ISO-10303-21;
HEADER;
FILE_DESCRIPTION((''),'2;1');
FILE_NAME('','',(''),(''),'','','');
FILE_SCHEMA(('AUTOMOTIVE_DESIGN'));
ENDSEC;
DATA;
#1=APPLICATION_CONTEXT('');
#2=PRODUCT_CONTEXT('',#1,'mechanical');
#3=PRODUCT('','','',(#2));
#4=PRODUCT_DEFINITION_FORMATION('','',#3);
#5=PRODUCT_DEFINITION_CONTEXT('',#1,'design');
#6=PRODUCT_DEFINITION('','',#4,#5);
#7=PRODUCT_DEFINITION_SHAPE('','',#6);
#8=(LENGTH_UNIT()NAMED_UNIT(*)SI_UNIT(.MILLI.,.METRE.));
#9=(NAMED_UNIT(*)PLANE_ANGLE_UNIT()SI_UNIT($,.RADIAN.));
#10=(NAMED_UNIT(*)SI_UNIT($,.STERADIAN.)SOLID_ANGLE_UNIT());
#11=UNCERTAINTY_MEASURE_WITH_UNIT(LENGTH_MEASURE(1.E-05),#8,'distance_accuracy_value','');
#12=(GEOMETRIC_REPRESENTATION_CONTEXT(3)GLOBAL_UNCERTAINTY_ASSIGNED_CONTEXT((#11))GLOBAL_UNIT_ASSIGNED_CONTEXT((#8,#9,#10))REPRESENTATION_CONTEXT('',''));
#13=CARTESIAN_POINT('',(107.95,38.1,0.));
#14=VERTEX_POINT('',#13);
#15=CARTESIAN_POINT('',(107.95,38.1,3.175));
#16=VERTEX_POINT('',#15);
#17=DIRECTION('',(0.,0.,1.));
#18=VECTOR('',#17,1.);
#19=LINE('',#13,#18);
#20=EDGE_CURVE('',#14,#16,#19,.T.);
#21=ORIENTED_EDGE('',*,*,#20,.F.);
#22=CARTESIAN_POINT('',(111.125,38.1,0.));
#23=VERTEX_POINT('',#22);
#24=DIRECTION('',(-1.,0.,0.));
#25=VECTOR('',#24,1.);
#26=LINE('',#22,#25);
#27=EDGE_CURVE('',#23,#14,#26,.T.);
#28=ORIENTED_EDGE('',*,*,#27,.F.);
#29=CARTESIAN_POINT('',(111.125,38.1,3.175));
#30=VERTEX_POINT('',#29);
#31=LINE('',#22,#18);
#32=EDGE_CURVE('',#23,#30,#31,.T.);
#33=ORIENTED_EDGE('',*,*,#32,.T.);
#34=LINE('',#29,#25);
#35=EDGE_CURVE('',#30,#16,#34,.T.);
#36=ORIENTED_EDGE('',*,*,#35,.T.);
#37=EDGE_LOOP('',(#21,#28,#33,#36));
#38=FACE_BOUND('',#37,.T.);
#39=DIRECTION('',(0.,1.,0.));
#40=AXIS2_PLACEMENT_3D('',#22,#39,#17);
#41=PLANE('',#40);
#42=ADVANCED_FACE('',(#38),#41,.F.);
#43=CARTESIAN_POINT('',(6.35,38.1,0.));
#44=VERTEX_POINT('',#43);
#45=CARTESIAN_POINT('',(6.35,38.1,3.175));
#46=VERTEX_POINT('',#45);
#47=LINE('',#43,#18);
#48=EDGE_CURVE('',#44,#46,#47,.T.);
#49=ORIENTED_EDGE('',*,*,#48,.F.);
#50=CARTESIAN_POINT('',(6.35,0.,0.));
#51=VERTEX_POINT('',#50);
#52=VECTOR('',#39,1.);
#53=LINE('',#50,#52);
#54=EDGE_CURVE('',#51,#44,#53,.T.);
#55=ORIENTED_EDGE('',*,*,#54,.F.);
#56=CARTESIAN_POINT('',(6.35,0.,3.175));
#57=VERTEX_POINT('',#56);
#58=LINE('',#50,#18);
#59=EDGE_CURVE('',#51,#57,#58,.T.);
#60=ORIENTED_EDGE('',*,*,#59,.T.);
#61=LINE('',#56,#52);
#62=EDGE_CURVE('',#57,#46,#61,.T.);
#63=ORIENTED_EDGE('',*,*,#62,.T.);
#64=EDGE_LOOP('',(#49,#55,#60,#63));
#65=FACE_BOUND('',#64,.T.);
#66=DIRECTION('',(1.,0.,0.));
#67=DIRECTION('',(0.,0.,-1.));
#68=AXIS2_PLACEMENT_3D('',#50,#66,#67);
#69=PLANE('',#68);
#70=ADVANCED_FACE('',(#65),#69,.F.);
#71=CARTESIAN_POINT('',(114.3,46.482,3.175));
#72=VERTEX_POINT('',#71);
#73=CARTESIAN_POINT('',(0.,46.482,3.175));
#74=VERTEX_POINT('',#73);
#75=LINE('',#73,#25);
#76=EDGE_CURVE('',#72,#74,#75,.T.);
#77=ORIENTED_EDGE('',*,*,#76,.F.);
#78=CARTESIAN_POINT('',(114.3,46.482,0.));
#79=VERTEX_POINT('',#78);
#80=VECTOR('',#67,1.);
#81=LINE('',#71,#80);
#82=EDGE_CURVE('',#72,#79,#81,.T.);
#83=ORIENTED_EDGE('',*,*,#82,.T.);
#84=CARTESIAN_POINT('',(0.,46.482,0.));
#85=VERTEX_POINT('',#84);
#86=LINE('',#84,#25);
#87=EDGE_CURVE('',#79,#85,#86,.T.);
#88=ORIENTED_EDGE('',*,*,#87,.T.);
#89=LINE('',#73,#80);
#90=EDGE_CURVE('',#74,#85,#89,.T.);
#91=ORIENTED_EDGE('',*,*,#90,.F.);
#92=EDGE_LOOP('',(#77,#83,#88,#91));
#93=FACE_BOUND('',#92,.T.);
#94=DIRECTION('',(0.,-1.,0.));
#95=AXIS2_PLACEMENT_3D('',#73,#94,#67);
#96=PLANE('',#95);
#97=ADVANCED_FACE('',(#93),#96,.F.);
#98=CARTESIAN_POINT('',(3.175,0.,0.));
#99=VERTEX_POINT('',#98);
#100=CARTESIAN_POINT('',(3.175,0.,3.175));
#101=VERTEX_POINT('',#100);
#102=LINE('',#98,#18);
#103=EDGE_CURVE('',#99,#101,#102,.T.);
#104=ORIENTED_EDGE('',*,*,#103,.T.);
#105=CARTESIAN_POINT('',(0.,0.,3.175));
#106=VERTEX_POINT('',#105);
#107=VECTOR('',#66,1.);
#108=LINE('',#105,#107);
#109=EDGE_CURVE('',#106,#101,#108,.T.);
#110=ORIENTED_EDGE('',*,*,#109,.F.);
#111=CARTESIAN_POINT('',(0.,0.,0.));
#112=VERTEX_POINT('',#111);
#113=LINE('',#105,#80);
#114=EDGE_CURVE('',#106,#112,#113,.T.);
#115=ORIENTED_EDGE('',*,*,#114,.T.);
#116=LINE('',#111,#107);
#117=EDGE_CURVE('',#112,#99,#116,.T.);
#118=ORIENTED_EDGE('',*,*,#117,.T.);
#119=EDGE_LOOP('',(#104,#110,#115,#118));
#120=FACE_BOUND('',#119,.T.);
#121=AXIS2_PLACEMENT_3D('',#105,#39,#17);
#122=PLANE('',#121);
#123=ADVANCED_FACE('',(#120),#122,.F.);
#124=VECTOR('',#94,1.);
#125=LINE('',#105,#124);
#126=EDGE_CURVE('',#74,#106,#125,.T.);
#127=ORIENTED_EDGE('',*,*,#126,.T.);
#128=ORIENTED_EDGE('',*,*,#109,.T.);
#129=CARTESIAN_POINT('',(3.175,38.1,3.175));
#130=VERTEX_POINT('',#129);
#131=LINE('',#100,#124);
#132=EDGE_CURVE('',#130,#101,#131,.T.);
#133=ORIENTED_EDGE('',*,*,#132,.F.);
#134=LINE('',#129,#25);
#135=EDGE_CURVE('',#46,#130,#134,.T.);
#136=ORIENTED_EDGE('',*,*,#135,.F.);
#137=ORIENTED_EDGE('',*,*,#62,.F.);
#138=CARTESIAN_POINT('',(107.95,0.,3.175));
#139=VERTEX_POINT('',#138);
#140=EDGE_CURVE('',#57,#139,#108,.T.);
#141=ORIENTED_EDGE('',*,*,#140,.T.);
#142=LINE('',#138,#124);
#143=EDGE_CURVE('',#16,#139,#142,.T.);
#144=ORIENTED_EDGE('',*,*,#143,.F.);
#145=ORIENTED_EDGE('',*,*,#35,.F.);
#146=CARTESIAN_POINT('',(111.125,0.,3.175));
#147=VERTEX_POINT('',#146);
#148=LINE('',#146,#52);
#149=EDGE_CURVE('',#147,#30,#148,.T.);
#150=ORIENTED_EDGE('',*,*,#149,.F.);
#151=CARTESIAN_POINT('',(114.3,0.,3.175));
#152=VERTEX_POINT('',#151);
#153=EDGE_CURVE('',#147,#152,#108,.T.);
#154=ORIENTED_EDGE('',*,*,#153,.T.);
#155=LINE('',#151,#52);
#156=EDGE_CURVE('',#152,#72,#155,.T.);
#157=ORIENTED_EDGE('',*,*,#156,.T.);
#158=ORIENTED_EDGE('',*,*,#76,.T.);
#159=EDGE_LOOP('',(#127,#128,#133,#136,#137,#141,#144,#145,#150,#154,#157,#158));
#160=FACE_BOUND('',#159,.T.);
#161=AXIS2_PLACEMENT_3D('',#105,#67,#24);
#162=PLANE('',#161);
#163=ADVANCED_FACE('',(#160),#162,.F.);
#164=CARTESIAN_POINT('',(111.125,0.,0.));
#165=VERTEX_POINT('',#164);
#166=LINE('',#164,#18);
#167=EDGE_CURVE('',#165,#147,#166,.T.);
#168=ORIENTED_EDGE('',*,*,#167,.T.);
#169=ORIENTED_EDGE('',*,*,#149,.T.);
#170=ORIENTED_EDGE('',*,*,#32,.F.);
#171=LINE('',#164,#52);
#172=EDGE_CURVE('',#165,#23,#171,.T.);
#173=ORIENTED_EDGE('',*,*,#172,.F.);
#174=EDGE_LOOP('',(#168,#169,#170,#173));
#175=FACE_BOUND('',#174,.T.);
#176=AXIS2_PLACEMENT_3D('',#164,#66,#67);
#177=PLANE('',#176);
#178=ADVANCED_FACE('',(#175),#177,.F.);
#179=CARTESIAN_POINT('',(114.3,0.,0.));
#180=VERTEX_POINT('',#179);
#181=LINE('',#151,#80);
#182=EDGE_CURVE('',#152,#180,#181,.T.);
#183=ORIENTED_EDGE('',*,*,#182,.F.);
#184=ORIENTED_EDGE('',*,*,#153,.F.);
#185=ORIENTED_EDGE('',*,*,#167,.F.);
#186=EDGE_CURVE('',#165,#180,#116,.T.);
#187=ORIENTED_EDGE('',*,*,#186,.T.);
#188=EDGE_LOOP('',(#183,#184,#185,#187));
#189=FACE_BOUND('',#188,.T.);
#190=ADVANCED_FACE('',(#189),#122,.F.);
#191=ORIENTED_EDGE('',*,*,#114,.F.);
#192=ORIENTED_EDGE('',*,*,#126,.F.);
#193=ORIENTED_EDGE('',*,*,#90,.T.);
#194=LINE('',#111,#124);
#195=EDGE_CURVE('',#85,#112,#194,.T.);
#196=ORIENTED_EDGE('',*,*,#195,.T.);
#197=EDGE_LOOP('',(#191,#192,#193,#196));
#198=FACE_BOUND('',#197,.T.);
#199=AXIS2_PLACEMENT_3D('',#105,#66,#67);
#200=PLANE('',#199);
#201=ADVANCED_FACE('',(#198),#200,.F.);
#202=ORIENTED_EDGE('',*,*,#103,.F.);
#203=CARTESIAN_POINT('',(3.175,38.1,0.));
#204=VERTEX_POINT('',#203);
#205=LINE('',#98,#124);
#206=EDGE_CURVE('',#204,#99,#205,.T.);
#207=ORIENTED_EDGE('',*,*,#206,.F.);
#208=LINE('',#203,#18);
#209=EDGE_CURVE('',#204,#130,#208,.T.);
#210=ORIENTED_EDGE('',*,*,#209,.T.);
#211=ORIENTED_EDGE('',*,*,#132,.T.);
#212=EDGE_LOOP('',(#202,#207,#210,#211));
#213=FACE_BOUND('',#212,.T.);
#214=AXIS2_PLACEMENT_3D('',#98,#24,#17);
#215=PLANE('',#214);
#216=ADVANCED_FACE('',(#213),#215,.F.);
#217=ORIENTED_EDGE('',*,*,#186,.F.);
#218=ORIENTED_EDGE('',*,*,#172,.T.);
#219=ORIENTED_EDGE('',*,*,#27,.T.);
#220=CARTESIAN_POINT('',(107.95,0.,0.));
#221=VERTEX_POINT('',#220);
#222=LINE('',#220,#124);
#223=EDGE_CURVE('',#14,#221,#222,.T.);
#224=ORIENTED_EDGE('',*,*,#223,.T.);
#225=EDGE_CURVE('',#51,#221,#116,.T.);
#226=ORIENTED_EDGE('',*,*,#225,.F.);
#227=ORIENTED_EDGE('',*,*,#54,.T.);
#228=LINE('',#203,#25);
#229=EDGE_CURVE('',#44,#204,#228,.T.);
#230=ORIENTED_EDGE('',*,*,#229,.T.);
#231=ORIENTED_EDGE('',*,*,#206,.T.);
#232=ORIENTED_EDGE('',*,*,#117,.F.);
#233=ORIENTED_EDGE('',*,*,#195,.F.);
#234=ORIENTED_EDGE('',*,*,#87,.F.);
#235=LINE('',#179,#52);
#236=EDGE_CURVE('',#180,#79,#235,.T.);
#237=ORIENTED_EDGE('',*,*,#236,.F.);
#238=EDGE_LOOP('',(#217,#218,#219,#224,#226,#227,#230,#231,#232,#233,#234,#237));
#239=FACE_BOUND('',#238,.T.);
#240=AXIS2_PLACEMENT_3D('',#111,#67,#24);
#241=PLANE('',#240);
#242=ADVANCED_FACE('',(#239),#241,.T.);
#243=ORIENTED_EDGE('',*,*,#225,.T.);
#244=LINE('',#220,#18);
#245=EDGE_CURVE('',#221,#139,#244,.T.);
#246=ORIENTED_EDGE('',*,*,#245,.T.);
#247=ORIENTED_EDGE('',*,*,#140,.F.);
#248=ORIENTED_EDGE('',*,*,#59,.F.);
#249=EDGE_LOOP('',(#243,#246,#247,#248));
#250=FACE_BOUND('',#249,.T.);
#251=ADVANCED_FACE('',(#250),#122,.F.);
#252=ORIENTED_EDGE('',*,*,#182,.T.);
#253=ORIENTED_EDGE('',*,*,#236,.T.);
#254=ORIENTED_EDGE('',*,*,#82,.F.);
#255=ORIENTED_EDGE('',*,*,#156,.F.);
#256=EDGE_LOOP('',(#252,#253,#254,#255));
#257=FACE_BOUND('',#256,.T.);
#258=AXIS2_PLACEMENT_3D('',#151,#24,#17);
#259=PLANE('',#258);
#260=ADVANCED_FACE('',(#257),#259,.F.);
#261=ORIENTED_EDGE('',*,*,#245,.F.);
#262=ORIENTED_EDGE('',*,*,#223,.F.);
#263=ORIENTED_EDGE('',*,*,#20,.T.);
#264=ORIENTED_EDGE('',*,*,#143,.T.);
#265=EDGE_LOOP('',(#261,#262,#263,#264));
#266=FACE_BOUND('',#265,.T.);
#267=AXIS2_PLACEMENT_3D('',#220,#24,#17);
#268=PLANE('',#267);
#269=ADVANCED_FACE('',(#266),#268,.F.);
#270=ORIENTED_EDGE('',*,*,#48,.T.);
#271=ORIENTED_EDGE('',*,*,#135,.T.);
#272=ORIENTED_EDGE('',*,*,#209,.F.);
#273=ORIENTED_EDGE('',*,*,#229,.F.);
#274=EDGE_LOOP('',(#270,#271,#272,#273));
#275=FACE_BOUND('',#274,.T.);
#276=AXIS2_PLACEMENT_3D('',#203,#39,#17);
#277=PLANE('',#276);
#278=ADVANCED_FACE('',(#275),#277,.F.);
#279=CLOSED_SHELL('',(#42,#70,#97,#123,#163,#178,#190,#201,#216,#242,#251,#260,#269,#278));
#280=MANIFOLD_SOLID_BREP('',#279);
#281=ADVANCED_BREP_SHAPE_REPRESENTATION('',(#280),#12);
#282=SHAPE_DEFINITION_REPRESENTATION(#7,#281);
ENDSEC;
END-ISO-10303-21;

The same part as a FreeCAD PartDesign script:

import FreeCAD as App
import Part
import Sketcher
Q = App.Units.Quantity

doc = App.newDocument("Part")
body = doc.addObject("PartDesign::Body", "Body")

sketch1 = body.newObject("Sketcher::SketchObject", "Sketch")
sketch1.AttachmentSupport = (doc.getObject("XY_Plane"), [""])
sketch1.MapMode = "FlatFace"
sketch1.addGeometry([
    Part.LineSegment(App.Vector(0, 46, 0), App.Vector(0, 0, 0)),
    Part.LineSegment(App.Vector(0, 0, 0), App.Vector(114, 0, 0)),
    Part.LineSegment(App.Vector(114, 0, 0), App.Vector(114, 46, 0)),
    Part.LineSegment(App.Vector(114, 46, 0), App.Vector(0, 46, 0)),
], False)
sketch1.addConstraint([
    Sketcher.Constraint("Coincident", 0, 2, 1, 1),
    Sketcher.Constraint("Coincident", 1, 2, 2, 1),
    Sketcher.Constraint("Coincident", 2, 2, 3, 1),
    Sketcher.Constraint("Coincident", 3, 2, 0, 1),
    Sketcher.Constraint("Vertical", 0),
    Sketcher.Constraint("Horizontal", 1),
    Sketcher.Constraint("Vertical", 2),
    Sketcher.Constraint("Horizontal", 3),
    Sketcher.Constraint("Coincident", 0, 2, -1, 1),
    Sketcher.Constraint("DistanceX", 1, 1, 1, 2, Q("4.5 in")),
    Sketcher.Constraint("DistanceY", 0, 2, 0, 1, Q("1.83 in")),
])
pad1 = body.newObject("PartDesign::Pad", "Pad")
pad1.Profile = sketch1
pad1.Length = Q("0.125 in")

sketch2 = body.newObject("Sketcher::SketchObject", "Sketch001")
sketch2.AttachmentSupport = (doc.getObject("XY_Plane"), [""])
sketch2.MapMode = "FlatFace"
sketch2.AttachmentOffset = App.Placement(App.Vector(0, 0, 0.125 * 25.4), App.Rotation())
sketch2.addGeometry([
    Part.LineSegment(App.Vector(3.2, 38.1, 0), App.Vector(3.2, 0, 0)),
    Part.LineSegment(App.Vector(3.2, 0, 0), App.Vector(6.3, 0, 0)),
    Part.LineSegment(App.Vector(6.3, 0, 0), App.Vector(6.3, 38.1, 0)),
    Part.LineSegment(App.Vector(6.3, 38.1, 0), App.Vector(3.2, 38.1, 0)),
    Part.LineSegment(App.Vector(108, 38.1, 0), App.Vector(108, 0, 0)),
    Part.LineSegment(App.Vector(108, 0, 0), App.Vector(111.1, 0, 0)),
    Part.LineSegment(App.Vector(111.1, 0, 0), App.Vector(111.1, 38.1, 0)),
    Part.LineSegment(App.Vector(111.1, 38.1, 0), App.Vector(108, 38.1, 0)),
], False)
sketch2.addConstraint([
    Sketcher.Constraint("Coincident", 0, 2, 1, 1),
    Sketcher.Constraint("Coincident", 1, 2, 2, 1),
    Sketcher.Constraint("Coincident", 2, 2, 3, 1),
    Sketcher.Constraint("Coincident", 3, 2, 0, 1),
    Sketcher.Constraint("Coincident", 4, 2, 5, 1),
    Sketcher.Constraint("Coincident", 5, 2, 6, 1),
    Sketcher.Constraint("Coincident", 6, 2, 7, 1),
    Sketcher.Constraint("Coincident", 7, 2, 4, 1),
    Sketcher.Constraint("Vertical", 0),
    Sketcher.Constraint("Horizontal", 1),
    Sketcher.Constraint("Vertical", 2),
    Sketcher.Constraint("Horizontal", 3),
    Sketcher.Constraint("Vertical", 4),
    Sketcher.Constraint("Horizontal", 5),
    Sketcher.Constraint("Vertical", 6),
    Sketcher.Constraint("Horizontal", 7),
    Sketcher.Constraint("PointOnObject", 0, 2, -1),
    Sketcher.Constraint("PointOnObject", 4, 2, -1),
    Sketcher.Constraint("Horizontal", 3, 2, 6, 2),
    Sketcher.Constraint("Equal", 3, 5),
    Sketcher.Constraint("DistanceY", 0, 2, 0, 1, Q("1.5 in")),
    Sketcher.Constraint("DistanceX", 1, 2, 4, 2, Q("4 in")),
    Sketcher.Constraint("DistanceX", 1, 1, 1, 2, Q("0.125 in")),
    Sketcher.Constraint("DistanceX", -1, 1, 1, 2, Q("0.25 in")),
])
pocket1 = body.newObject("PartDesign::Pocket", "Pocket")
pocket1.Profile = sketch2
pocket1.Type = "ThroughAll"

doc.recompute()
